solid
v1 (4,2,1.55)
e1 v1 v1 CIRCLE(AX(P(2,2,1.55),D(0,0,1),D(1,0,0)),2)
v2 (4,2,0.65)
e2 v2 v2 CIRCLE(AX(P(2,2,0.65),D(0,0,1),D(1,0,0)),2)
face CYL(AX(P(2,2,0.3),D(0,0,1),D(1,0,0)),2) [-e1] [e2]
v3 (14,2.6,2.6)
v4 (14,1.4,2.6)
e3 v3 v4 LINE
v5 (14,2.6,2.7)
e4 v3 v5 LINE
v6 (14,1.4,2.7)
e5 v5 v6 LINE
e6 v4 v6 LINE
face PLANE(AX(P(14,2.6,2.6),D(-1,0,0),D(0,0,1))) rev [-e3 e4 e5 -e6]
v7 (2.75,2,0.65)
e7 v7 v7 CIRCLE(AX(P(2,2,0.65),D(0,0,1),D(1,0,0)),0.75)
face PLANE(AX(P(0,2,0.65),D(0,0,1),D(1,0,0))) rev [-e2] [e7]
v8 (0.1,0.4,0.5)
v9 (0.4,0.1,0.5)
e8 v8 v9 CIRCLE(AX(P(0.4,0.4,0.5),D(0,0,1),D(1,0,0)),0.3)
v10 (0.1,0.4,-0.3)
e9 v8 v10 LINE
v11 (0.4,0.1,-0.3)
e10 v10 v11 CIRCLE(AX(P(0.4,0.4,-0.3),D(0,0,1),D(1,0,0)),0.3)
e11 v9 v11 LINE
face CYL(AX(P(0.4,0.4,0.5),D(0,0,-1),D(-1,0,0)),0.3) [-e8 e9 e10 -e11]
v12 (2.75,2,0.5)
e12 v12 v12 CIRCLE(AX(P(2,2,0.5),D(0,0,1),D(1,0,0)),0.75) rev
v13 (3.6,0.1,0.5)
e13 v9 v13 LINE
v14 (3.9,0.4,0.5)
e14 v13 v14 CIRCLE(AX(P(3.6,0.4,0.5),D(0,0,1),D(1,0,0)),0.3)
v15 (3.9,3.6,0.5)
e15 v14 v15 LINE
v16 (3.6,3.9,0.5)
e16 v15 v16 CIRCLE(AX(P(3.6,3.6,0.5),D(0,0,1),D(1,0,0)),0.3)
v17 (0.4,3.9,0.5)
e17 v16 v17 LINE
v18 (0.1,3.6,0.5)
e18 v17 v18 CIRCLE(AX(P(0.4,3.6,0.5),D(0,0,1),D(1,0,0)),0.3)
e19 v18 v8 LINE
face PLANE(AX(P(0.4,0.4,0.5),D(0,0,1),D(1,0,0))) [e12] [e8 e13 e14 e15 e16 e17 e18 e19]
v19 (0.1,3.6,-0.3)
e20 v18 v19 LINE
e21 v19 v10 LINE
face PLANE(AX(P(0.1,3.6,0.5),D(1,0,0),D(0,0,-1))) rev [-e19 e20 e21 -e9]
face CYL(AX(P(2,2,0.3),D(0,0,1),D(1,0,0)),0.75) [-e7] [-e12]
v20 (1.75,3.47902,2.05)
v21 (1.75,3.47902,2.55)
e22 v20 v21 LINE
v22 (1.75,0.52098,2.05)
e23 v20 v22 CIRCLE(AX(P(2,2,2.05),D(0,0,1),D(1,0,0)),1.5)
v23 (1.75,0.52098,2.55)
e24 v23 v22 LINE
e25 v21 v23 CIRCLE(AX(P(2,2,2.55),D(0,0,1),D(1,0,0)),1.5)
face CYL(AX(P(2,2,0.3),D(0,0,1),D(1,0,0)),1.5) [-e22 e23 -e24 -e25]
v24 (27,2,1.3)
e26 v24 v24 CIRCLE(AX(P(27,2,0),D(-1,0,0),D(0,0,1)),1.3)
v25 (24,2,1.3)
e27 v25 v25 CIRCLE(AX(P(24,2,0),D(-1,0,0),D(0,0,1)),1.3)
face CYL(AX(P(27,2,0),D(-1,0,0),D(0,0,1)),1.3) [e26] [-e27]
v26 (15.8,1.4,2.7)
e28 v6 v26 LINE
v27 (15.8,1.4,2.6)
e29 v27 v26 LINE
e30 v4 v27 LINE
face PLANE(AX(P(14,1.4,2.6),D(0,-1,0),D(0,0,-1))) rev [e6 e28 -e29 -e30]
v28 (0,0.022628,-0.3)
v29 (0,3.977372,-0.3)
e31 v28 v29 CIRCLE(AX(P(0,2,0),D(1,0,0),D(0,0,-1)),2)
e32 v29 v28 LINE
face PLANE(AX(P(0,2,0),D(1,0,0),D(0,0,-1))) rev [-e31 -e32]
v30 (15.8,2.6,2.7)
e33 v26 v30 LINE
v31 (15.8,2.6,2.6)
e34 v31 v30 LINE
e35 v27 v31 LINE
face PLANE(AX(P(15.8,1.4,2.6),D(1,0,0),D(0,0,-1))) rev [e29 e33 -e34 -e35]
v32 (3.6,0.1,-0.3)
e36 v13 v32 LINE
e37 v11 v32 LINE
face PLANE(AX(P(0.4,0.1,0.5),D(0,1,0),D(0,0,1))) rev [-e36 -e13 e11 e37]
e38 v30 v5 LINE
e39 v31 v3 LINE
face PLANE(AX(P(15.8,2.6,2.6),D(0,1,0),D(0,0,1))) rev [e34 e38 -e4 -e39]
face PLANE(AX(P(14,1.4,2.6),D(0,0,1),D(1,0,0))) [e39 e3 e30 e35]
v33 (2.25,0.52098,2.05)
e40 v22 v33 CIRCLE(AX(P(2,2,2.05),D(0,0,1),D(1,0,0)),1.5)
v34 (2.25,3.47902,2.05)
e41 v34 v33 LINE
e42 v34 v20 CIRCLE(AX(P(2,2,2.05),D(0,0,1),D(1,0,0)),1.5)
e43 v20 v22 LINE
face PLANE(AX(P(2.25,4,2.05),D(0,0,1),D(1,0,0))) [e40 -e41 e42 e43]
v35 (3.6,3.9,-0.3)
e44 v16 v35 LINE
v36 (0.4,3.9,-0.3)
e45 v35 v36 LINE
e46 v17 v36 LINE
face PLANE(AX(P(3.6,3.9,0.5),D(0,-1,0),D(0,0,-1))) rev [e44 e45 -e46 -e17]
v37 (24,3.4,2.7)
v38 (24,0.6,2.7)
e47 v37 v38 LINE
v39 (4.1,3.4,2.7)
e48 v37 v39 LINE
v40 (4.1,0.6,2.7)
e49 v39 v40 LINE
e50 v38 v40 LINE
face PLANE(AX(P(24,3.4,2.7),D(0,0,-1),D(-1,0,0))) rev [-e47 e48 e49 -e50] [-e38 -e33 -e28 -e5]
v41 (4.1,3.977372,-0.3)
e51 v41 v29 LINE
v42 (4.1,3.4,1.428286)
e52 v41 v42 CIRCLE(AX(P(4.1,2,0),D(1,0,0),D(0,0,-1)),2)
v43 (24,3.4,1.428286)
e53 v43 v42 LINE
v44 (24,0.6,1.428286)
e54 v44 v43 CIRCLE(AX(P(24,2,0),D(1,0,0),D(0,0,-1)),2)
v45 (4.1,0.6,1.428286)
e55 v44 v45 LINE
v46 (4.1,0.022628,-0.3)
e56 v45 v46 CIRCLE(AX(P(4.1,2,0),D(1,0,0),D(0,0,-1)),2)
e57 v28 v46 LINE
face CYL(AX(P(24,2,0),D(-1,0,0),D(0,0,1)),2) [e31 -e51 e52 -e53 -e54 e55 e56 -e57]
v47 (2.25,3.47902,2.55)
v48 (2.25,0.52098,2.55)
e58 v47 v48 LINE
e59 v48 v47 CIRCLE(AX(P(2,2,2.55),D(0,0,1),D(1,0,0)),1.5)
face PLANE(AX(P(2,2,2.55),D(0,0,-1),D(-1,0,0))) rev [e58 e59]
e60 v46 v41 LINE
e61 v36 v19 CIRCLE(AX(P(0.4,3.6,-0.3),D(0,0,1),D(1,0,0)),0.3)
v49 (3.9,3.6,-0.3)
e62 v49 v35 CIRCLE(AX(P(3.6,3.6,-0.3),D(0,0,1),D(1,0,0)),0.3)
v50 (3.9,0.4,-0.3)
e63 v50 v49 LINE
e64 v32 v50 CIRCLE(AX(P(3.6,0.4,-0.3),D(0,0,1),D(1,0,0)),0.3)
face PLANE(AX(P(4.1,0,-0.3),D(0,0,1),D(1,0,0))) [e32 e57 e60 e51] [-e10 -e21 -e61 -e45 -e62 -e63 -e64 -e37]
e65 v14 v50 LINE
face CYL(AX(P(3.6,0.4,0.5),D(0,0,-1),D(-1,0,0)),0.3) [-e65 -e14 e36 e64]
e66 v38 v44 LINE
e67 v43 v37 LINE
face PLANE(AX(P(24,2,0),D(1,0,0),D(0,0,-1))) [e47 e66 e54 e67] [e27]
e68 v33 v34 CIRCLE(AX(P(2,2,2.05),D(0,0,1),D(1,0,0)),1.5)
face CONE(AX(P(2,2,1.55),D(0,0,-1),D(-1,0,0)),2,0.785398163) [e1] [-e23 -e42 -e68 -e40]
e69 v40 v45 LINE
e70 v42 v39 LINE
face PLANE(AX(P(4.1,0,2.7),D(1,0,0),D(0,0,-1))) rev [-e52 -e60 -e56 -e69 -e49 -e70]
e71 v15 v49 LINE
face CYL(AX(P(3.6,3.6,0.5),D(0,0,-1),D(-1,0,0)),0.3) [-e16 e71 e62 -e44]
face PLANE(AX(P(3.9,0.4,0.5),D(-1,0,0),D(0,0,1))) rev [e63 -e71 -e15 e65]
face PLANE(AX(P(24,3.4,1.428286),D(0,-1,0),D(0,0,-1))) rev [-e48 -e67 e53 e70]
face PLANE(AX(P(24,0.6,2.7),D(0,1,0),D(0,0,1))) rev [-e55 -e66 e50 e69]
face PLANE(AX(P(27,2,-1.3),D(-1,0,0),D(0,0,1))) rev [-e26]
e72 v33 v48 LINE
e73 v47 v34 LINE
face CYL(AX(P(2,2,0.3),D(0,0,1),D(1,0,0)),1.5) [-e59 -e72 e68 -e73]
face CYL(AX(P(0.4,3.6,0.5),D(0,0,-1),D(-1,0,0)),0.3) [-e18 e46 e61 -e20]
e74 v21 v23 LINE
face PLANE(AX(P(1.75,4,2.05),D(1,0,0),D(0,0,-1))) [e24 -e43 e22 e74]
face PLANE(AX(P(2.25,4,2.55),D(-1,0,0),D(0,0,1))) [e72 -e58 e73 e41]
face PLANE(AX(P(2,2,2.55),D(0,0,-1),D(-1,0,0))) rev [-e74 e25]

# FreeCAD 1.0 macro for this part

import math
import FreeCAD as App
import Part
import Sketcher
from FreeCAD import Vector
Q = App.Units.Quantity

doc = App.newDocument("Part")
params = doc.addObject("Spreadsheet::Sheet", "Params")
for row, (alias, value) in enumerate([
    ("sketch1_radius", "2 mm"),
    ("sketch1_width", "2.8 mm"),
    ("pad1_length", "24 mm"),
    ("sketch2_width", "4 mm"),
    ("sketch2_height", "3 mm"),
    ("pocket1_length", "4.1 mm"),
    ("sketch3_radius", "0.3 mm"),
    ("sketch3_width", "3.2 mm"),
    ("pad2_length", "0.8 mm"),
    ("sketch4_width", "1.5 mm"),
    ("sketch4_height", "0.9 mm"),
    ("sketch4_height2", "0.5 mm"),
    ("sketch4_width2", "0.75 mm"),
    ("sketch4_height3", "2.25 mm"),
    ("revolution_angle", "360 deg"),
    ("sketch5_width", "0.5 mm"),
    ("sketch6_width", "1.8 mm"),
    ("sketch6_height", "1.2 mm"),
    ("pocket3_length", "0.1 mm"),
    ("sketch7_width", "3 mm"),
    ("sketch7_height", "1.3 mm"),
    ("revolution2_angle", "360 deg"),
], start=1):
    params.set(f"A{row}", alias)
    params.set(f"B{row}", "=" + value)
    params.setAlias(f"B{row}", alias)

body = doc.addObject("PartDesign::Body", "Body")

# Sketch on YZ plane
sketch1 = body.newObject("Sketcher::SketchObject", "Sketch")
sketch1.AttachmentSupport = (doc.getObject("YZ_Plane"), [""])
sketch1.MapMode = "FlatFace"
sketch1.addGeometry([
    Part.LineSegment(Vector(0.6, 2.7, 0), Vector(0.6, 1.4, 0)),
    Part.ArcOfCircle(Part.Circle(Vector(2, 0, 0), Vector(0, 0, 1), 2), math.radians(134), math.radians(406)),
    Part.LineSegment(Vector(3.4, 1.4, 0), Vector(3.4, 2.7, 0)),
    Part.LineSegment(Vector(3.4, 2.7, 0), Vector(0.6, 2.7, 0)),
], False)
sketch1.addConstraint([
    Sketcher.Constraint("Coincident", 0, 2, 1, 1),
    Sketcher.Constraint("Coincident", 1, 2, 2, 1),
    Sketcher.Constraint("Coincident", 2, 2, 3, 1),
    Sketcher.Constraint("Coincident", 3, 2, 0, 1),
    Sketcher.Constraint("Vertical", 0),
    Sketcher.Constraint("Vertical", 2),
    Sketcher.Constraint("Horizontal", 3),
    Sketcher.Constraint("PointOnObject", 1, 3, -1),
    Sketcher.Constraint("Horizontal", 0, 2, 1, 2),
    Sketcher.Constraint("Radius", 1, Q("2 mm")),
    Sketcher.Constraint("DistanceX", 3, 2, 3, 1, Q("2.8 mm")),
    Sketcher.Constraint("DistanceX", -1, 1, 1, 3, Q("2 mm")),
    Sketcher.Constraint("DistanceY", -1, 1, 2, 2, Q("2.7 mm")),
])
sketch1.setExpression("Constraints[9]", "Params.sketch1_radius")
sketch1.setExpression("Constraints[10]", "Params.sketch1_width")
pad1 = body.newObject("PartDesign::Pad", "Pad")
pad1.Profile = sketch1
pad1.setExpression("Length", "Params.pad1_length")

# Sketch on YZ plane
sketch2 = body.newObject("Sketcher::SketchObject", "Sketch001")
sketch2.AttachmentSupport = (doc.getObject("YZ_Plane"), [""])
sketch2.MapMode = "FlatFace"
sketch2.addGeometry([
    Part.LineSegment(Vector(4, 2.7, 0), Vector(0, 2.7, 0)),
    Part.LineSegment(Vector(0, 2.7, 0), Vector(0, -0.3, 0)),
    Part.LineSegment(Vector(0, -0.3, 0), Vector(4, -0.3, 0)),
    Part.LineSegment(Vector(4, -0.3, 0), Vector(4, 2.7, 0)),
], False)
sketch2.addConstraint([
    Sketcher.Constraint("Coincident", 0, 2, 1, 1),
    Sketcher.Constraint("Coincident", 1, 2, 2, 1),
    Sketcher.Constraint("Coincident", 2, 2, 3, 1),
    Sketcher.Constraint("Coincident", 3, 2, 0, 1),
    Sketcher.Constraint("Horizontal", 0),
    Sketcher.Constraint("Vertical", 1),
    Sketcher.Constraint("Horizontal", 2),
    Sketcher.Constraint("Vertical", 3),
    Sketcher.Constraint("PointOnObject", 0, 2, -2),
    Sketcher.Constraint("DistanceX", 0, 2, 0, 1, Q("4 mm")),
    Sketcher.Constraint("DistanceY", 1, 2, 1, 1, Q("3 mm")),
    Sketcher.Constraint("DistanceY", -1, 1, 0, 2, Q("2.7 mm")),
])
sketch2.setExpression("Constraints[9]", "Params.sketch2_width")
sketch2.setExpression("Constraints[10]", "Params.sketch2_height")
pocket1 = body.newObject("PartDesign::Pocket", "Pocket")
pocket1.Profile = sketch2
pocket1.setExpression("Length", "Params.pocket1_length")
pocket1.Reversed = True

# Sketch on XY plane
sketch3 = body.newObject("Sketcher::SketchObject", "Sketch002")
sketch3.AttachmentSupport = (doc.getObject("XY_Plane"), [""])
sketch3.MapMode = "FlatFace"
sketch3.AttachmentOffset = App.Placement(Vector(0, 0, -0.3), App.Rotation())
sketch3.addGeometry([
    Part.LineSegment(Vector(0.4, 0.1, 0), Vector(3.6, 0.1, 0)),  # 0
    Part.ArcOfCircle(Part.Circle(Vector(3.6, 0.4, 0), Vector(0, 0, 1), 0.3), math.radians(-90), math.radians(0)),  # 1
    Part.LineSegment(Vector(3.9, 0.4, 0), Vector(3.9, 3.6, 0)),  # 2
    Part.ArcOfCircle(Part.Circle(Vector(3.6, 3.6, 0), Vector(0, 0, 1), 0.3), math.radians(0), math.radians(90)),  # 3
    Part.LineSegment(Vector(3.6, 3.9, 0), Vector(0.4, 3.9, 0)),  # 4
    Part.ArcOfCircle(Part.Circle(Vector(0.4, 3.6, 0), Vector(0, 0, 1), 0.3), math.radians(90), math.radians(180)),  # 5
    Part.LineSegment(Vector(0.1, 3.6, 0), Vector(0.1, 0.4, 0)),  # 6
    Part.ArcOfCircle(Part.Circle(Vector(0.4, 0.4, 0), Vector(0, 0, 1), 0.3), math.radians(-180), math.radians(-90)),  # 7
], False)
sketch3.addConstraint([
    Sketcher.Constraint("Tangent", 0, 2, 1, 1),
    Sketcher.Constraint("Tangent", 1, 2, 2, 1),
    Sketcher.Constraint("Tangent", 2, 2, 3, 1),
    Sketcher.Constraint("Tangent", 3, 2, 4, 1),
    Sketcher.Constraint("Tangent", 4, 2, 5, 1),
    Sketcher.Constraint("Tangent", 5, 2, 6, 1),
    Sketcher.Constraint("Tangent", 6, 2, 7, 1),
    Sketcher.Constraint("Tangent", 7, 2, 0, 1),
    Sketcher.Constraint("Horizontal", 0),
    Sketcher.Constraint("Vertical", 2),
    Sketcher.Constraint("Horizontal", 4),
    Sketcher.Constraint("Vertical", 6),
    Sketcher.Constraint("Equal", 1, 3),
    Sketcher.Constraint("Equal", 3, 5),
    Sketcher.Constraint("Equal", 5, 7),
    Sketcher.Constraint("Equal", 4, 2),
    Sketcher.Constraint("Radius", 1, Q("0.3 mm")),
    Sketcher.Constraint("DistanceX", 0, 1, 0, 2, Q("3.2 mm")),
    Sketcher.Constraint("DistanceX", -1, 1, 1, 3, Q("3.6 mm")),
    Sketcher.Constraint("DistanceY", -1, 1, 1, 3, Q("0.4 mm")),
])
sketch3.setExpression("Constraints[16]", "Params.sketch3_radius")
sketch3.setExpression("Constraints[17]", "Params.sketch3_width")
pad2 = body.newObject("PartDesign::Pad", "Pad001")
pad2.Profile = sketch3
pad2.setExpression("Length", "Params.pad2_length")

# Sketch on XZ plane
sketch4 = body.newObject("Sketcher::SketchObject", "Sketch003")
sketch4.AttachmentSupport = (doc.getObject("XZ_Plane"), [""])
sketch4.MapMode = "FlatFace"
sketch4.AttachmentOffset = App.Placement(Vector(0, 0, -2), App.Rotation())
sketch4.addGeometry([
    Part.LineSegment(Vector(0.5, 2.55, 0), Vector(2, 2.55, 0)),  # 0
    Part.LineSegment(Vector(2, 2.55, 0), Vector(2, 0.3, 0)),  # 1
    Part.LineSegment(Vector(2, 0.3, 0), Vector(1.25, 0.3, 0)),  # 2
    Part.LineSegment(Vector(1.25, 0.3, 0), Vector(1.25, 0.65, 0)),  # 3
    Part.LineSegment(Vector(1.25, 0.65, 0), Vector(0, 0.65, 0)),  # 4
    Part.LineSegment(Vector(0, 0.65, 0), Vector(0, 1.55, 0)),  # 5
    Part.LineSegment(Vector(0, 1.55, 0), Vector(0.5, 2.05, 0)),  # 6
    Part.LineSegment(Vector(0.5, 2.05, 0), Vector(0.5, 2.55, 0)),  # 7
], False)
sketch4.addGeometry(Part.LineSegment(Vector(2, 0.3, 0), Vector(2, 2.55, 0)), True)  # axis
sketch4.addConstraint([
    Sketcher.Constraint("Coincident", 0, 2, 1, 1),
    Sketcher.Constraint("Coincident", 1, 2, 2, 1),
    Sketcher.Constraint("Coincident", 2, 2, 3, 1),
    Sketcher.Constraint("Coincident", 3, 2, 4, 1),
    Sketcher.Constraint("Coincident", 4, 2, 5, 1),
    Sketcher.Constraint("Coincident", 5, 2, 6, 1),
    Sketcher.Constraint("Coincident", 6, 2, 7, 1),
    Sketcher.Constraint("Coincident", 7, 2, 0, 1),
    Sketcher.Constraint("Horizontal", 0),
    Sketcher.Constraint("Vertical", 1),
    Sketcher.Constraint("Horizontal", 2),
    Sketcher.Constraint("Vertical", 3),
    Sketcher.Constraint("Horizontal", 4),
    Sketcher.Constraint("Vertical", 5),
    Sketcher.Constraint("Vertical", 7),
    Sketcher.Constraint("Vertical", 8),
    Sketcher.Constraint("Coincident", 8, 1, 1, 2),
    Sketcher.Constraint("PointOnObject", 4, 2, -2),
    Sketcher.Constraint("Horizontal", 7, 2, 8, 2),
    Sketcher.Constraint("Angle", 6, Q("45 deg")),
    Sketcher.Constraint("DistanceX", 0, 1, 0, 2, Q("1.5 mm")),
    Sketcher.Constraint("DistanceY", 5, 1, 5, 2, Q("0.9 mm")),
    Sketcher.Constraint("DistanceY", 7, 1, 7, 2, Q("0.5 mm")),
    Sketcher.Constraint("DistanceX", -1, 1, 0, 2, Q("2 mm")),
    Sketcher.Constraint("DistanceX", 2, 2, 2, 1, Q("0.75 mm")),
    Sketcher.Constraint("DistanceY", 1, 2, 1, 1, Q("2.25 mm")),
    Sketcher.Constraint("DistanceY", -1, 1, 1, 2, Q("0.3 mm")),
])
sketch4.setExpression("Constraints[20]", "Params.sketch4_width")
sketch4.setExpression("Constraints[21]", "Params.sketch4_height")
sketch4.setExpression("Constraints[22]", "Params.sketch4_height2")
sketch4.setExpression("Constraints[24]", "Params.sketch4_width2")
sketch4.setExpression("Constraints[25]", "Params.sketch4_height3")
revolution = body.newObject("PartDesign::Revolution", "Revolution")
revolution.Profile = sketch4
revolution.ReferenceAxis = (sketch4, ["Axis0"])
revolution.setExpression("Angle", "Params.revolution_angle")

# Sketch on XZ plane
sketch5 = body.newObject("Sketcher::SketchObject", "Sketch004")
sketch5.AttachmentSupport = (doc.getObject("XZ_Plane"), [""])
sketch5.MapMode = "FlatFace"
sketch5.AttachmentOffset = App.Placement(Vector(0, 0, -2), App.Rotation())
sketch5.addGeometry([
    Part.LineSegment(Vector(2.2, 2.5, 0), Vector(2.2, 2, 0)),
    Part.LineSegment(Vector(2.2, 2, 0), Vector(1.8, 2, 0)),
    Part.LineSegment(Vector(1.8, 2, 0), Vector(1.8, 2.5, 0)),
    Part.LineSegment(Vector(1.8, 2.5, 0), Vector(2.2, 2.5, 0)),
], False)
sketch5.addConstraint([
    Sketcher.Constraint("Coincident", 0, 2, 1, 1),
    Sketcher.Constraint("Coincident", 1, 2, 2, 1),
    Sketcher.Constraint("Coincident", 2, 2, 3, 1),
    Sketcher.Constraint("Coincident", 3, 2, 0, 1),
    Sketcher.Constraint("Vertical", 0),
    Sketcher.Constraint("Horizontal", 1),
    Sketcher.Constraint("Vertical", 2),
    Sketcher.Constraint("Horizontal", 3),
    Sketcher.Constraint("Equal", 3, 0),
    Sketcher.Constraint("DistanceX", 1, 2, 1, 1, Q("0.5 mm")),
    Sketcher.Constraint("DistanceX", -1, 1, 0, 2, Q("2.25 mm")),
    Sketcher.Constraint("DistanceY", -1, 1, 0, 2, Q("2.05 mm")),
])
sketch5.setExpression("Constraints[9]", "Params.sketch5_width")
pocket2 = body.newObject("PartDesign::Pocket", "Pocket001")
pocket2.Profile = sketch5
pocket2.Type = "ThroughAll"
pocket2.Midplane = True

# Sketch on XY plane
sketch6 = body.newObject("Sketcher::SketchObject", "Sketch005")
sketch6.AttachmentSupport = (doc.getObject("XY_Plane"), [""])
sketch6.MapMode = "FlatFace"
sketch6.AttachmentOffset = App.Placement(Vector(0, 0, 2.7), App.Rotation())
sketch6.addGeometry([
    Part.LineSegment(Vector(14, 2.6, 0), Vector(14, 1.4, 0)),
    Part.LineSegment(Vector(14, 1.4, 0), Vector(15.8, 1.4, 0)),
    Part.LineSegment(Vector(15.8, 1.4, 0), Vector(15.8, 2.6, 0)),
    Part.LineSegment(Vector(15.8, 2.6, 0), Vector(14, 2.6, 0)),
], False)
sketch6.addConstraint([
    Sketcher.Constraint("Coincident", 0, 2, 1, 1),
    Sketcher.Constraint("Coincident", 1, 2, 2, 1),
    Sketcher.Constraint("Coincident", 2, 2, 3, 1),
    Sketcher.Constraint("Coincident", 3, 2, 0, 1),
    Sketcher.Constraint("Vertical", 0),
    Sketcher.Constraint("Horizontal", 1),
    Sketcher.Constraint("Vertical", 2),
    Sketcher.Constraint("Horizontal", 3),
    Sketcher.Constraint("DistanceX", 1, 1, 1, 2, Q("1.8 mm")),
    Sketcher.Constraint("DistanceY", 0, 2, 0, 1, Q("1.2 mm")),
    Sketcher.Constraint("DistanceX", -1, 1, 0, 2, Q("14 mm")),
    Sketcher.Constraint("DistanceY", -1, 1, 0, 2, Q("1.4 mm")),
])
sketch6.setExpression("Constraints[8]", "Params.sketch6_width")
sketch6.setExpression("Constraints[9]", "Params.sketch6_height")
pocket3 = body.newObject("PartDesign::Pocket", "Pocket002")
pocket3.Profile = sketch6
pocket3.setExpression("Length", "Params.pocket3_length")

# Sketch on XZ plane
sketch7 = body.newObject("Sketcher::SketchObject", "Sketch006")
sketch7.AttachmentSupport = (doc.getObject("XZ_Plane"), [""])
sketch7.MapMode = "FlatFace"
sketch7.AttachmentOffset = App.Placement(Vector(0, 0, -2), App.Rotation())
sketch7.addGeometry([
    Part.LineSegment(Vector(27, 0, 0), Vector(27, -1.3, 0)),
    Part.LineSegment(Vector(27, -1.3, 0), Vector(24, -1.3, 0)),
    Part.LineSegment(Vector(24, -1.3, 0), Vector(24, 0, 0)),
    Part.LineSegment(Vector(24, 0, 0), Vector(27, 0, 0)),
], False)
sketch7.addConstraint([
    Sketcher.Constraint("Coincident", 0, 2, 1, 1),
    Sketcher.Constraint("Coincident", 1, 2, 2, 1),
    Sketcher.Constraint("Coincident", 2, 2, 3, 1),
    Sketcher.Constraint("Coincident", 3, 2, 0, 1),
    Sketcher.Constraint("Vertical", 0),
    Sketcher.Constraint("Horizontal", 1),
    Sketcher.Constraint("Vertical", 2),
    Sketcher.Constraint("Horizontal", 3),
    Sketcher.Constraint("PointOnObject", 2, 2, -1),
    Sketcher.Constraint("DistanceX", 1, 2, 1, 1, Q("3 mm")),
    Sketcher.Constraint("DistanceY", 0, 2, 0, 1, Q("1.3 mm")),
    Sketcher.Constraint("DistanceX", -1, 1, 0, 2, Q("27 mm")),
])
sketch7.setExpression("Constraints[9]", "Params.sketch7_width")
sketch7.setExpression("Constraints[10]", "Params.sketch7_height")
revolution2 = body.newObject("PartDesign::Revolution", "Revolution001")
revolution2.Profile = sketch7
revolution2.ReferenceAxis = (sketch7, ["H_Axis"])
revolution2.setExpression("Angle", "Params.revolution2_angle")

doc.recompute()
